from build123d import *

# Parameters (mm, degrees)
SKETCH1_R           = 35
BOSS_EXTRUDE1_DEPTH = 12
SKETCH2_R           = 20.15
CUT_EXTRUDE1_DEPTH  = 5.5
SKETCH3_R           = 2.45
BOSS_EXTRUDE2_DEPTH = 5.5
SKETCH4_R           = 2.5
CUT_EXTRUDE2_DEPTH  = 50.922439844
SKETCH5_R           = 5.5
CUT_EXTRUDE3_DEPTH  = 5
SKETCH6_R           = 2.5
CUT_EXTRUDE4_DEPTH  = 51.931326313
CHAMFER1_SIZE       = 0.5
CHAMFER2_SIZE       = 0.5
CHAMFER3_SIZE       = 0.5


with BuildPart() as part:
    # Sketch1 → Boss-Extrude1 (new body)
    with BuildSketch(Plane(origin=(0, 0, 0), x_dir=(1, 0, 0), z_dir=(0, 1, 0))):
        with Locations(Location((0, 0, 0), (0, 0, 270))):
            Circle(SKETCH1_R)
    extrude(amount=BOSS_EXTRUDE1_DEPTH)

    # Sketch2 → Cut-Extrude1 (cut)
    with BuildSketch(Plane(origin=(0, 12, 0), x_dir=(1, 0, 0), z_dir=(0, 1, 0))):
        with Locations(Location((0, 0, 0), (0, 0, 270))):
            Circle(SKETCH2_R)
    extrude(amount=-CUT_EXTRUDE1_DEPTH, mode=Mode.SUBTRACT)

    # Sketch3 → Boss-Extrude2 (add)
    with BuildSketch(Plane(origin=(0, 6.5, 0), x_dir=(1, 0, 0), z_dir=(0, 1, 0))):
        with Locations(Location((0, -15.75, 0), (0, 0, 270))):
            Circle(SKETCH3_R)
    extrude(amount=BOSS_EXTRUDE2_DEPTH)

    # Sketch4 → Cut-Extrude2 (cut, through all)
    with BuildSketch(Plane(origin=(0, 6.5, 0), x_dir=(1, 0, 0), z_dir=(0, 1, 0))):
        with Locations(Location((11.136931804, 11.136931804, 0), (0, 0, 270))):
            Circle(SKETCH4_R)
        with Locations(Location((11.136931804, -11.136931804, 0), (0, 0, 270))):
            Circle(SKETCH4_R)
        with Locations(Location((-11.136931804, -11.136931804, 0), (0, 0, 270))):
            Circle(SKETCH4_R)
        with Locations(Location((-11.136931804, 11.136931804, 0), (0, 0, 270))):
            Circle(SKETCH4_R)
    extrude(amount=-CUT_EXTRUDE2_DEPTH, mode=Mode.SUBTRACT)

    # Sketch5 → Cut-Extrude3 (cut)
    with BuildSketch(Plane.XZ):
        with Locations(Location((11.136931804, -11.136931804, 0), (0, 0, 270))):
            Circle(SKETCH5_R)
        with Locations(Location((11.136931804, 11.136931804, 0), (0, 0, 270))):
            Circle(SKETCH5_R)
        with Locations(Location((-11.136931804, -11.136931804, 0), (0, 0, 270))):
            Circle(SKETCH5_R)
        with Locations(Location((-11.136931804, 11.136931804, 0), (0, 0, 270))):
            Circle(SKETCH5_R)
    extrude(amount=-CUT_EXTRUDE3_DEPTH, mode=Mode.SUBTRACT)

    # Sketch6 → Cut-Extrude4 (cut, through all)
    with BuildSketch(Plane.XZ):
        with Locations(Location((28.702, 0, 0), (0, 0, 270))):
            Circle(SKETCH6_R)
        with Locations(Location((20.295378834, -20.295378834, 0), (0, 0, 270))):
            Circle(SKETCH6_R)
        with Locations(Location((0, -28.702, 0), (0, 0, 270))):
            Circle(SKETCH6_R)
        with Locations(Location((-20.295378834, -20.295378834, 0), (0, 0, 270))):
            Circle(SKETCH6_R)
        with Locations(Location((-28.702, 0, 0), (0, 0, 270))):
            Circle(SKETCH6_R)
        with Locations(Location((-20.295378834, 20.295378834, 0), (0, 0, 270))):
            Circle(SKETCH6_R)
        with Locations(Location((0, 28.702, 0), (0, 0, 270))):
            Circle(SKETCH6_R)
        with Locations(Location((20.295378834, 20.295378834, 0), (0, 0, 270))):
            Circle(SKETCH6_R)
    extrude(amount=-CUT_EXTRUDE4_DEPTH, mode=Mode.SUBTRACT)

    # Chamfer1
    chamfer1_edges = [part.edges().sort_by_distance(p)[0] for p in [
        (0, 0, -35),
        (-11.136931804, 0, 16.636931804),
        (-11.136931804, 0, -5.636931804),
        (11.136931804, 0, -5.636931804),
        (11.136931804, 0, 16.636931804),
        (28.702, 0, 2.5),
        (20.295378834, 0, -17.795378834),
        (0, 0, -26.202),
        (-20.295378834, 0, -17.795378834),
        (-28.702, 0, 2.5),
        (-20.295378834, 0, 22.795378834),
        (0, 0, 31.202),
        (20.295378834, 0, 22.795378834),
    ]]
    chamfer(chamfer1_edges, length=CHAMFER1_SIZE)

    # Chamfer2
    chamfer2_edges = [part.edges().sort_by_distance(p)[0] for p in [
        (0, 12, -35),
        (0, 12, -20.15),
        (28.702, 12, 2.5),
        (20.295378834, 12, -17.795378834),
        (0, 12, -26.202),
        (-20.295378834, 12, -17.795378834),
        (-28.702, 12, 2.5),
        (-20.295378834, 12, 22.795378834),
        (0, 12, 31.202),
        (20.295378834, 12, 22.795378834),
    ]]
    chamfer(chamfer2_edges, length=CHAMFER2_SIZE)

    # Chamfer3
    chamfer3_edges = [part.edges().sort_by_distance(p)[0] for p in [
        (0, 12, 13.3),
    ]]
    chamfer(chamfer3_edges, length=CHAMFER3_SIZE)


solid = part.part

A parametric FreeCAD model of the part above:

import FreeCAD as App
import Part
import Sketcher

V = App.Vector


def edges_at(feature, points):
    """Names of the edges that pass closest to the given points."""
    edges = feature.Shape.Edges
    near = lambda p: min(range(len(edges)), key=lambda i: edges[i].distToShape(Part.Vertex(*p))[0])
    return sorted({f"Edge{near(p) + 1}" for p in points})

doc = App.newDocument("Part")
body = doc.addObject("PartDesign::Body", "Body")

# Sketch on XZ plane
sketch1 = body.newObject("Sketcher::SketchObject", "Sketch")
sketch1.AttachmentSupport = (doc.getObject("XZ_Plane"), [""])
sketch1.MapMode = "FlatFace"
sketch1.addGeometry(Part.Circle(V(0, 0, 0), V(0, 0, 1), 35), False)
sketch1.addConstraint([
    Sketcher.Constraint("Coincident", 0, 3, -1, 1),
    Sketcher.Constraint("Diameter", 0, 70.0),
])
pad1 = body.newObject("PartDesign::Pad", "Pad")
pad1.Profile = sketch1
pad1.Length = 12
pad1.Reversed = True

# Sketch on XZ plane
sketch2 = body.newObject("Sketcher::SketchObject", "Sketch001")
sketch2.AttachmentSupport = (doc.getObject("XZ_Plane"), [""])
sketch2.MapMode = "FlatFace"
sketch2.AttachmentOffset = App.Placement(V(0, 0, -12), App.Rotation())
sketch2.addGeometry(Part.Circle(V(0, 0, 0), V(0, 0, 1), 20.15), False)
sketch2.addConstraint([
    Sketcher.Constraint("Coincident", 0, 3, -1, 1),
    Sketcher.Constraint("Diameter", 0, 40.3),
])
pocket1 = body.newObject("PartDesign::Pocket", "Pocket")
pocket1.Profile = sketch2
pocket1.Length = 5.5
pocket1.Reversed = True

# Sketch on XZ plane
sketch3 = body.newObject("Sketcher::SketchObject", "Sketch002")
sketch3.AttachmentSupport = (doc.getObject("XZ_Plane"), [""])
sketch3.MapMode = "FlatFace"
sketch3.AttachmentOffset = App.Placement(V(0, 0, -6.5), App.Rotation())
sketch3.addGeometry(Part.Circle(V(0, 15.75, 0), V(0, 0, 1), 2.45), False)
sketch3.addConstraint([
    Sketcher.Constraint("PointOnObject", 0, 3, -2),
    Sketcher.Constraint("Diameter", 0, 4.9),
    Sketcher.Constraint("DistanceY", -1, 1, 0, 3, 15.75),
])
pad2 = body.newObject("PartDesign::Pad", "Pad001")
pad2.Profile = sketch3
pad2.Length = 5.5
pad2.Reversed = True

# Sketch on XZ plane
sketch4 = body.newObject("Sketcher::SketchObject", "Sketch003")
sketch4.AttachmentSupport = (doc.getObject("XZ_Plane"), [""])
sketch4.MapMode = "FlatFace"
sketch4.AttachmentOffset = App.Placement(V(0, 0, -6.5), App.Rotation())
sketch4.addGeometry([
    Part.Circle(V(11.136932, -11.136932, 0), V(0, 0, 1), 2.5),
    Part.Circle(V(11.136932, 11.136932, 0), V(0, 0, 1), 2.5),
    Part.Circle(V(-11.136932, 11.136932, 0), V(0, 0, 1), 2.5),
    Part.Circle(V(-11.136932, -11.136932, 0), V(0, 0, 1), 2.5),
], False)
sketch4.addConstraint([
    Sketcher.Constraint("Equal", 0, 1),
    Sketcher.Constraint("Equal", 1, 2),
    Sketcher.Constraint("Equal", 2, 3),
    Sketcher.Constraint("Symmetric", 0, 3, 2, 3, -1, 1),
    Sketcher.Constraint("Symmetric", 1, 3, 3, 3, -1, 1),
    Sketcher.Constraint("Symmetric", 1, 3, 2, 3, -2),
    Sketcher.Constraint("Diameter", 0, 5.0),
    Sketcher.Constraint("DistanceX", -1, 1, 0, 3, 11.136932),
    Sketcher.Constraint("DistanceY", 0, 3, -1, 1, 11.136932),
])
pocket2 = body.newObject("PartDesign::Pocket", "Pocket001")
pocket2.Profile = sketch4
pocket2.Type = "ThroughAll"
pocket2.Reversed = True

# Sketch on XZ plane
sketch5 = body.newObject("Sketcher::SketchObject", "Sketch004")
sketch5.AttachmentSupport = (doc.getObject("XZ_Plane"), [""])
sketch5.MapMode = "FlatFace"
sketch5.addGeometry([
    Part.Circle(V(11.136932, -11.136932, 0), V(0, 0, 1), 5.5),
    Part.Circle(V(11.136932, 11.136932, 0), V(0, 0, 1), 5.5),
    Part.Circle(V(-11.136932, -11.136932, 0), V(0, 0, 1), 5.5),
    Part.Circle(V(-11.136932, 11.136932, 0), V(0, 0, 1), 5.5),
], False)
sketch5.addConstraint([
    Sketcher.Constraint("Equal", 0, 1),
    Sketcher.Constraint("Equal", 1, 2),
    Sketcher.Constraint("Equal", 2, 3),
    Sketcher.Constraint("Symmetric", 1, 3, 2, 3, -1, 1),
    Sketcher.Constraint("Symmetric", 0, 3, 3, 3, -1, 1),
    Sketcher.Constraint("Symmetric", 0, 3, 2, 3, -2),
    Sketcher.Constraint("Diameter", 0, 11.0),
    Sketcher.Constraint("DistanceX", -1, 1, 0, 3, 11.136932),
    Sketcher.Constraint("DistanceY", 0, 3, -1, 1, 11.136932),
])
pocket3 = body.newObject("PartDesign::Pocket", "Pocket002")
pocket3.Profile = sketch5
pocket3.Length = 5

# Sketch on XZ plane
sketch6 = body.newObject("Sketcher::SketchObject", "Sketch005")
sketch6.AttachmentSupport = (doc.getObject("XZ_Plane"), [""])
sketch6.MapMode = "FlatFace"
sketch6.addGeometry([
    Part.Circle(V(28.702, 0, 0), V(0, 0, 1), 2.5),  # 0
    Part.Circle(V(20.295379, -20.295379, 0), V(0, 0, 1), 2.5),  # 1
    Part.Circle(V(0, -28.702, 0), V(0, 0, 1), 2.5),  # 2
    Part.Circle(V(-20.295379, -20.295379, 0), V(0, 0, 1), 2.5),  # 3
    Part.Circle(V(-28.702, 0, 0), V(0, 0, 1), 2.5),  # 4
    Part.Circle(V(-20.295379, 20.295379, 0), V(0, 0, 1), 2.5),  # 5
    Part.Circle(V(0, 28.702, 0), V(0, 0, 1), 2.5),  # 6
    Part.Circle(V(20.295379, 20.295379, 0), V(0, 0, 1), 2.5),  # 7
], False)
sketch6.addConstraint([
    Sketcher.Constraint("Equal", 0, 1),
    Sketcher.Constraint("Equal", 1, 2),
    Sketcher.Constraint("Equal", 2, 3),
    Sketcher.Constraint("Equal", 3, 4),
    Sketcher.Constraint("Equal", 4, 5),
    Sketcher.Constraint("Equal", 5, 6),
    Sketcher.Constraint("Equal", 6, 7),
    Sketcher.Constraint("Symmetric", 0, 3, 4, 3, -1, 1),
    Sketcher.Constraint("Symmetric", 1, 3, 5, 3, -1, 1),
    Sketcher.Constraint("Symmetric", 2, 3, 6, 3, -1, 1),
    Sketcher.Constraint("Symmetric", 3, 3, 7, 3, -1, 1),
    Sketcher.Constraint("Symmetric", 1, 3, 3, 3, -2),
    Sketcher.Constraint("PointOnObject", 0, 3, -1),
    Sketcher.Constraint("PointOnObject", 2, 3, -2),
    Sketcher.Constraint("Diameter", 0, 5.0),
    Sketcher.Constraint("DistanceX", -1, 1, 0, 3, 28.702),
    Sketcher.Constraint("DistanceY", 2, 3, -1, 1, 28.702),
    Sketcher.Constraint("DistanceX", -1, 1, 1, 3, 20.295379),
    Sketcher.Constraint("DistanceY", 1, 3, -1, 1, 20.295379),
])
pocket4 = body.newObject("PartDesign::Pocket", "Pocket003")
pocket4.Profile = sketch6
pocket4.Type = "ThroughAll"
doc.recompute()

chamfer = body.newObject("PartDesign::Chamfer", "Chamfer")
chamfer.Base = (pocket4, edges_at(pocket4, [
    (0, 0, -35),
    (-11.137, 0, 16.637),
    (-11.137, 0, -5.637),
    (11.137, 0, -5.637),
    (11.137, 0, 16.637),
    (28.702, 0, 2.5),
    (20.295, 0, -17.795),
    (0, 0, -26.202),
    (-20.295, 0, -17.795),
    (-28.702, 0, 2.5),
    (-20.295, 0, 22.795),
    (0, 0, 31.202),
    (20.295, 0, 22.795),
]))
chamfer.Size = 0.5
doc.recompute()

chamfer2 = body.newObject("PartDesign::Chamfer", "Chamfer001")
chamfer2.Base = (chamfer, edges_at(chamfer, [
    (0, 12, -35),
    (0, 12, -20.15),
    (28.702, 12, 2.5),
    (20.295, 12, -17.795),
    (0, 12, -26.202),
    (-20.295, 12, -17.795),
    (-28.702, 12, 2.5),
    (-20.295, 12, 22.795),
    (0, 12, 31.202),
    (20.295, 12, 22.795),
]))
chamfer2.Size = 0.5
doc.recompute()

chamfer3 = body.newObject("PartDesign::Chamfer", "Chamfer002")
chamfer3.Base = (chamfer2, edges_at(chamfer2, [(0, 12, 13.3)]))
chamfer3.Size = 0.5

doc.recompute()
